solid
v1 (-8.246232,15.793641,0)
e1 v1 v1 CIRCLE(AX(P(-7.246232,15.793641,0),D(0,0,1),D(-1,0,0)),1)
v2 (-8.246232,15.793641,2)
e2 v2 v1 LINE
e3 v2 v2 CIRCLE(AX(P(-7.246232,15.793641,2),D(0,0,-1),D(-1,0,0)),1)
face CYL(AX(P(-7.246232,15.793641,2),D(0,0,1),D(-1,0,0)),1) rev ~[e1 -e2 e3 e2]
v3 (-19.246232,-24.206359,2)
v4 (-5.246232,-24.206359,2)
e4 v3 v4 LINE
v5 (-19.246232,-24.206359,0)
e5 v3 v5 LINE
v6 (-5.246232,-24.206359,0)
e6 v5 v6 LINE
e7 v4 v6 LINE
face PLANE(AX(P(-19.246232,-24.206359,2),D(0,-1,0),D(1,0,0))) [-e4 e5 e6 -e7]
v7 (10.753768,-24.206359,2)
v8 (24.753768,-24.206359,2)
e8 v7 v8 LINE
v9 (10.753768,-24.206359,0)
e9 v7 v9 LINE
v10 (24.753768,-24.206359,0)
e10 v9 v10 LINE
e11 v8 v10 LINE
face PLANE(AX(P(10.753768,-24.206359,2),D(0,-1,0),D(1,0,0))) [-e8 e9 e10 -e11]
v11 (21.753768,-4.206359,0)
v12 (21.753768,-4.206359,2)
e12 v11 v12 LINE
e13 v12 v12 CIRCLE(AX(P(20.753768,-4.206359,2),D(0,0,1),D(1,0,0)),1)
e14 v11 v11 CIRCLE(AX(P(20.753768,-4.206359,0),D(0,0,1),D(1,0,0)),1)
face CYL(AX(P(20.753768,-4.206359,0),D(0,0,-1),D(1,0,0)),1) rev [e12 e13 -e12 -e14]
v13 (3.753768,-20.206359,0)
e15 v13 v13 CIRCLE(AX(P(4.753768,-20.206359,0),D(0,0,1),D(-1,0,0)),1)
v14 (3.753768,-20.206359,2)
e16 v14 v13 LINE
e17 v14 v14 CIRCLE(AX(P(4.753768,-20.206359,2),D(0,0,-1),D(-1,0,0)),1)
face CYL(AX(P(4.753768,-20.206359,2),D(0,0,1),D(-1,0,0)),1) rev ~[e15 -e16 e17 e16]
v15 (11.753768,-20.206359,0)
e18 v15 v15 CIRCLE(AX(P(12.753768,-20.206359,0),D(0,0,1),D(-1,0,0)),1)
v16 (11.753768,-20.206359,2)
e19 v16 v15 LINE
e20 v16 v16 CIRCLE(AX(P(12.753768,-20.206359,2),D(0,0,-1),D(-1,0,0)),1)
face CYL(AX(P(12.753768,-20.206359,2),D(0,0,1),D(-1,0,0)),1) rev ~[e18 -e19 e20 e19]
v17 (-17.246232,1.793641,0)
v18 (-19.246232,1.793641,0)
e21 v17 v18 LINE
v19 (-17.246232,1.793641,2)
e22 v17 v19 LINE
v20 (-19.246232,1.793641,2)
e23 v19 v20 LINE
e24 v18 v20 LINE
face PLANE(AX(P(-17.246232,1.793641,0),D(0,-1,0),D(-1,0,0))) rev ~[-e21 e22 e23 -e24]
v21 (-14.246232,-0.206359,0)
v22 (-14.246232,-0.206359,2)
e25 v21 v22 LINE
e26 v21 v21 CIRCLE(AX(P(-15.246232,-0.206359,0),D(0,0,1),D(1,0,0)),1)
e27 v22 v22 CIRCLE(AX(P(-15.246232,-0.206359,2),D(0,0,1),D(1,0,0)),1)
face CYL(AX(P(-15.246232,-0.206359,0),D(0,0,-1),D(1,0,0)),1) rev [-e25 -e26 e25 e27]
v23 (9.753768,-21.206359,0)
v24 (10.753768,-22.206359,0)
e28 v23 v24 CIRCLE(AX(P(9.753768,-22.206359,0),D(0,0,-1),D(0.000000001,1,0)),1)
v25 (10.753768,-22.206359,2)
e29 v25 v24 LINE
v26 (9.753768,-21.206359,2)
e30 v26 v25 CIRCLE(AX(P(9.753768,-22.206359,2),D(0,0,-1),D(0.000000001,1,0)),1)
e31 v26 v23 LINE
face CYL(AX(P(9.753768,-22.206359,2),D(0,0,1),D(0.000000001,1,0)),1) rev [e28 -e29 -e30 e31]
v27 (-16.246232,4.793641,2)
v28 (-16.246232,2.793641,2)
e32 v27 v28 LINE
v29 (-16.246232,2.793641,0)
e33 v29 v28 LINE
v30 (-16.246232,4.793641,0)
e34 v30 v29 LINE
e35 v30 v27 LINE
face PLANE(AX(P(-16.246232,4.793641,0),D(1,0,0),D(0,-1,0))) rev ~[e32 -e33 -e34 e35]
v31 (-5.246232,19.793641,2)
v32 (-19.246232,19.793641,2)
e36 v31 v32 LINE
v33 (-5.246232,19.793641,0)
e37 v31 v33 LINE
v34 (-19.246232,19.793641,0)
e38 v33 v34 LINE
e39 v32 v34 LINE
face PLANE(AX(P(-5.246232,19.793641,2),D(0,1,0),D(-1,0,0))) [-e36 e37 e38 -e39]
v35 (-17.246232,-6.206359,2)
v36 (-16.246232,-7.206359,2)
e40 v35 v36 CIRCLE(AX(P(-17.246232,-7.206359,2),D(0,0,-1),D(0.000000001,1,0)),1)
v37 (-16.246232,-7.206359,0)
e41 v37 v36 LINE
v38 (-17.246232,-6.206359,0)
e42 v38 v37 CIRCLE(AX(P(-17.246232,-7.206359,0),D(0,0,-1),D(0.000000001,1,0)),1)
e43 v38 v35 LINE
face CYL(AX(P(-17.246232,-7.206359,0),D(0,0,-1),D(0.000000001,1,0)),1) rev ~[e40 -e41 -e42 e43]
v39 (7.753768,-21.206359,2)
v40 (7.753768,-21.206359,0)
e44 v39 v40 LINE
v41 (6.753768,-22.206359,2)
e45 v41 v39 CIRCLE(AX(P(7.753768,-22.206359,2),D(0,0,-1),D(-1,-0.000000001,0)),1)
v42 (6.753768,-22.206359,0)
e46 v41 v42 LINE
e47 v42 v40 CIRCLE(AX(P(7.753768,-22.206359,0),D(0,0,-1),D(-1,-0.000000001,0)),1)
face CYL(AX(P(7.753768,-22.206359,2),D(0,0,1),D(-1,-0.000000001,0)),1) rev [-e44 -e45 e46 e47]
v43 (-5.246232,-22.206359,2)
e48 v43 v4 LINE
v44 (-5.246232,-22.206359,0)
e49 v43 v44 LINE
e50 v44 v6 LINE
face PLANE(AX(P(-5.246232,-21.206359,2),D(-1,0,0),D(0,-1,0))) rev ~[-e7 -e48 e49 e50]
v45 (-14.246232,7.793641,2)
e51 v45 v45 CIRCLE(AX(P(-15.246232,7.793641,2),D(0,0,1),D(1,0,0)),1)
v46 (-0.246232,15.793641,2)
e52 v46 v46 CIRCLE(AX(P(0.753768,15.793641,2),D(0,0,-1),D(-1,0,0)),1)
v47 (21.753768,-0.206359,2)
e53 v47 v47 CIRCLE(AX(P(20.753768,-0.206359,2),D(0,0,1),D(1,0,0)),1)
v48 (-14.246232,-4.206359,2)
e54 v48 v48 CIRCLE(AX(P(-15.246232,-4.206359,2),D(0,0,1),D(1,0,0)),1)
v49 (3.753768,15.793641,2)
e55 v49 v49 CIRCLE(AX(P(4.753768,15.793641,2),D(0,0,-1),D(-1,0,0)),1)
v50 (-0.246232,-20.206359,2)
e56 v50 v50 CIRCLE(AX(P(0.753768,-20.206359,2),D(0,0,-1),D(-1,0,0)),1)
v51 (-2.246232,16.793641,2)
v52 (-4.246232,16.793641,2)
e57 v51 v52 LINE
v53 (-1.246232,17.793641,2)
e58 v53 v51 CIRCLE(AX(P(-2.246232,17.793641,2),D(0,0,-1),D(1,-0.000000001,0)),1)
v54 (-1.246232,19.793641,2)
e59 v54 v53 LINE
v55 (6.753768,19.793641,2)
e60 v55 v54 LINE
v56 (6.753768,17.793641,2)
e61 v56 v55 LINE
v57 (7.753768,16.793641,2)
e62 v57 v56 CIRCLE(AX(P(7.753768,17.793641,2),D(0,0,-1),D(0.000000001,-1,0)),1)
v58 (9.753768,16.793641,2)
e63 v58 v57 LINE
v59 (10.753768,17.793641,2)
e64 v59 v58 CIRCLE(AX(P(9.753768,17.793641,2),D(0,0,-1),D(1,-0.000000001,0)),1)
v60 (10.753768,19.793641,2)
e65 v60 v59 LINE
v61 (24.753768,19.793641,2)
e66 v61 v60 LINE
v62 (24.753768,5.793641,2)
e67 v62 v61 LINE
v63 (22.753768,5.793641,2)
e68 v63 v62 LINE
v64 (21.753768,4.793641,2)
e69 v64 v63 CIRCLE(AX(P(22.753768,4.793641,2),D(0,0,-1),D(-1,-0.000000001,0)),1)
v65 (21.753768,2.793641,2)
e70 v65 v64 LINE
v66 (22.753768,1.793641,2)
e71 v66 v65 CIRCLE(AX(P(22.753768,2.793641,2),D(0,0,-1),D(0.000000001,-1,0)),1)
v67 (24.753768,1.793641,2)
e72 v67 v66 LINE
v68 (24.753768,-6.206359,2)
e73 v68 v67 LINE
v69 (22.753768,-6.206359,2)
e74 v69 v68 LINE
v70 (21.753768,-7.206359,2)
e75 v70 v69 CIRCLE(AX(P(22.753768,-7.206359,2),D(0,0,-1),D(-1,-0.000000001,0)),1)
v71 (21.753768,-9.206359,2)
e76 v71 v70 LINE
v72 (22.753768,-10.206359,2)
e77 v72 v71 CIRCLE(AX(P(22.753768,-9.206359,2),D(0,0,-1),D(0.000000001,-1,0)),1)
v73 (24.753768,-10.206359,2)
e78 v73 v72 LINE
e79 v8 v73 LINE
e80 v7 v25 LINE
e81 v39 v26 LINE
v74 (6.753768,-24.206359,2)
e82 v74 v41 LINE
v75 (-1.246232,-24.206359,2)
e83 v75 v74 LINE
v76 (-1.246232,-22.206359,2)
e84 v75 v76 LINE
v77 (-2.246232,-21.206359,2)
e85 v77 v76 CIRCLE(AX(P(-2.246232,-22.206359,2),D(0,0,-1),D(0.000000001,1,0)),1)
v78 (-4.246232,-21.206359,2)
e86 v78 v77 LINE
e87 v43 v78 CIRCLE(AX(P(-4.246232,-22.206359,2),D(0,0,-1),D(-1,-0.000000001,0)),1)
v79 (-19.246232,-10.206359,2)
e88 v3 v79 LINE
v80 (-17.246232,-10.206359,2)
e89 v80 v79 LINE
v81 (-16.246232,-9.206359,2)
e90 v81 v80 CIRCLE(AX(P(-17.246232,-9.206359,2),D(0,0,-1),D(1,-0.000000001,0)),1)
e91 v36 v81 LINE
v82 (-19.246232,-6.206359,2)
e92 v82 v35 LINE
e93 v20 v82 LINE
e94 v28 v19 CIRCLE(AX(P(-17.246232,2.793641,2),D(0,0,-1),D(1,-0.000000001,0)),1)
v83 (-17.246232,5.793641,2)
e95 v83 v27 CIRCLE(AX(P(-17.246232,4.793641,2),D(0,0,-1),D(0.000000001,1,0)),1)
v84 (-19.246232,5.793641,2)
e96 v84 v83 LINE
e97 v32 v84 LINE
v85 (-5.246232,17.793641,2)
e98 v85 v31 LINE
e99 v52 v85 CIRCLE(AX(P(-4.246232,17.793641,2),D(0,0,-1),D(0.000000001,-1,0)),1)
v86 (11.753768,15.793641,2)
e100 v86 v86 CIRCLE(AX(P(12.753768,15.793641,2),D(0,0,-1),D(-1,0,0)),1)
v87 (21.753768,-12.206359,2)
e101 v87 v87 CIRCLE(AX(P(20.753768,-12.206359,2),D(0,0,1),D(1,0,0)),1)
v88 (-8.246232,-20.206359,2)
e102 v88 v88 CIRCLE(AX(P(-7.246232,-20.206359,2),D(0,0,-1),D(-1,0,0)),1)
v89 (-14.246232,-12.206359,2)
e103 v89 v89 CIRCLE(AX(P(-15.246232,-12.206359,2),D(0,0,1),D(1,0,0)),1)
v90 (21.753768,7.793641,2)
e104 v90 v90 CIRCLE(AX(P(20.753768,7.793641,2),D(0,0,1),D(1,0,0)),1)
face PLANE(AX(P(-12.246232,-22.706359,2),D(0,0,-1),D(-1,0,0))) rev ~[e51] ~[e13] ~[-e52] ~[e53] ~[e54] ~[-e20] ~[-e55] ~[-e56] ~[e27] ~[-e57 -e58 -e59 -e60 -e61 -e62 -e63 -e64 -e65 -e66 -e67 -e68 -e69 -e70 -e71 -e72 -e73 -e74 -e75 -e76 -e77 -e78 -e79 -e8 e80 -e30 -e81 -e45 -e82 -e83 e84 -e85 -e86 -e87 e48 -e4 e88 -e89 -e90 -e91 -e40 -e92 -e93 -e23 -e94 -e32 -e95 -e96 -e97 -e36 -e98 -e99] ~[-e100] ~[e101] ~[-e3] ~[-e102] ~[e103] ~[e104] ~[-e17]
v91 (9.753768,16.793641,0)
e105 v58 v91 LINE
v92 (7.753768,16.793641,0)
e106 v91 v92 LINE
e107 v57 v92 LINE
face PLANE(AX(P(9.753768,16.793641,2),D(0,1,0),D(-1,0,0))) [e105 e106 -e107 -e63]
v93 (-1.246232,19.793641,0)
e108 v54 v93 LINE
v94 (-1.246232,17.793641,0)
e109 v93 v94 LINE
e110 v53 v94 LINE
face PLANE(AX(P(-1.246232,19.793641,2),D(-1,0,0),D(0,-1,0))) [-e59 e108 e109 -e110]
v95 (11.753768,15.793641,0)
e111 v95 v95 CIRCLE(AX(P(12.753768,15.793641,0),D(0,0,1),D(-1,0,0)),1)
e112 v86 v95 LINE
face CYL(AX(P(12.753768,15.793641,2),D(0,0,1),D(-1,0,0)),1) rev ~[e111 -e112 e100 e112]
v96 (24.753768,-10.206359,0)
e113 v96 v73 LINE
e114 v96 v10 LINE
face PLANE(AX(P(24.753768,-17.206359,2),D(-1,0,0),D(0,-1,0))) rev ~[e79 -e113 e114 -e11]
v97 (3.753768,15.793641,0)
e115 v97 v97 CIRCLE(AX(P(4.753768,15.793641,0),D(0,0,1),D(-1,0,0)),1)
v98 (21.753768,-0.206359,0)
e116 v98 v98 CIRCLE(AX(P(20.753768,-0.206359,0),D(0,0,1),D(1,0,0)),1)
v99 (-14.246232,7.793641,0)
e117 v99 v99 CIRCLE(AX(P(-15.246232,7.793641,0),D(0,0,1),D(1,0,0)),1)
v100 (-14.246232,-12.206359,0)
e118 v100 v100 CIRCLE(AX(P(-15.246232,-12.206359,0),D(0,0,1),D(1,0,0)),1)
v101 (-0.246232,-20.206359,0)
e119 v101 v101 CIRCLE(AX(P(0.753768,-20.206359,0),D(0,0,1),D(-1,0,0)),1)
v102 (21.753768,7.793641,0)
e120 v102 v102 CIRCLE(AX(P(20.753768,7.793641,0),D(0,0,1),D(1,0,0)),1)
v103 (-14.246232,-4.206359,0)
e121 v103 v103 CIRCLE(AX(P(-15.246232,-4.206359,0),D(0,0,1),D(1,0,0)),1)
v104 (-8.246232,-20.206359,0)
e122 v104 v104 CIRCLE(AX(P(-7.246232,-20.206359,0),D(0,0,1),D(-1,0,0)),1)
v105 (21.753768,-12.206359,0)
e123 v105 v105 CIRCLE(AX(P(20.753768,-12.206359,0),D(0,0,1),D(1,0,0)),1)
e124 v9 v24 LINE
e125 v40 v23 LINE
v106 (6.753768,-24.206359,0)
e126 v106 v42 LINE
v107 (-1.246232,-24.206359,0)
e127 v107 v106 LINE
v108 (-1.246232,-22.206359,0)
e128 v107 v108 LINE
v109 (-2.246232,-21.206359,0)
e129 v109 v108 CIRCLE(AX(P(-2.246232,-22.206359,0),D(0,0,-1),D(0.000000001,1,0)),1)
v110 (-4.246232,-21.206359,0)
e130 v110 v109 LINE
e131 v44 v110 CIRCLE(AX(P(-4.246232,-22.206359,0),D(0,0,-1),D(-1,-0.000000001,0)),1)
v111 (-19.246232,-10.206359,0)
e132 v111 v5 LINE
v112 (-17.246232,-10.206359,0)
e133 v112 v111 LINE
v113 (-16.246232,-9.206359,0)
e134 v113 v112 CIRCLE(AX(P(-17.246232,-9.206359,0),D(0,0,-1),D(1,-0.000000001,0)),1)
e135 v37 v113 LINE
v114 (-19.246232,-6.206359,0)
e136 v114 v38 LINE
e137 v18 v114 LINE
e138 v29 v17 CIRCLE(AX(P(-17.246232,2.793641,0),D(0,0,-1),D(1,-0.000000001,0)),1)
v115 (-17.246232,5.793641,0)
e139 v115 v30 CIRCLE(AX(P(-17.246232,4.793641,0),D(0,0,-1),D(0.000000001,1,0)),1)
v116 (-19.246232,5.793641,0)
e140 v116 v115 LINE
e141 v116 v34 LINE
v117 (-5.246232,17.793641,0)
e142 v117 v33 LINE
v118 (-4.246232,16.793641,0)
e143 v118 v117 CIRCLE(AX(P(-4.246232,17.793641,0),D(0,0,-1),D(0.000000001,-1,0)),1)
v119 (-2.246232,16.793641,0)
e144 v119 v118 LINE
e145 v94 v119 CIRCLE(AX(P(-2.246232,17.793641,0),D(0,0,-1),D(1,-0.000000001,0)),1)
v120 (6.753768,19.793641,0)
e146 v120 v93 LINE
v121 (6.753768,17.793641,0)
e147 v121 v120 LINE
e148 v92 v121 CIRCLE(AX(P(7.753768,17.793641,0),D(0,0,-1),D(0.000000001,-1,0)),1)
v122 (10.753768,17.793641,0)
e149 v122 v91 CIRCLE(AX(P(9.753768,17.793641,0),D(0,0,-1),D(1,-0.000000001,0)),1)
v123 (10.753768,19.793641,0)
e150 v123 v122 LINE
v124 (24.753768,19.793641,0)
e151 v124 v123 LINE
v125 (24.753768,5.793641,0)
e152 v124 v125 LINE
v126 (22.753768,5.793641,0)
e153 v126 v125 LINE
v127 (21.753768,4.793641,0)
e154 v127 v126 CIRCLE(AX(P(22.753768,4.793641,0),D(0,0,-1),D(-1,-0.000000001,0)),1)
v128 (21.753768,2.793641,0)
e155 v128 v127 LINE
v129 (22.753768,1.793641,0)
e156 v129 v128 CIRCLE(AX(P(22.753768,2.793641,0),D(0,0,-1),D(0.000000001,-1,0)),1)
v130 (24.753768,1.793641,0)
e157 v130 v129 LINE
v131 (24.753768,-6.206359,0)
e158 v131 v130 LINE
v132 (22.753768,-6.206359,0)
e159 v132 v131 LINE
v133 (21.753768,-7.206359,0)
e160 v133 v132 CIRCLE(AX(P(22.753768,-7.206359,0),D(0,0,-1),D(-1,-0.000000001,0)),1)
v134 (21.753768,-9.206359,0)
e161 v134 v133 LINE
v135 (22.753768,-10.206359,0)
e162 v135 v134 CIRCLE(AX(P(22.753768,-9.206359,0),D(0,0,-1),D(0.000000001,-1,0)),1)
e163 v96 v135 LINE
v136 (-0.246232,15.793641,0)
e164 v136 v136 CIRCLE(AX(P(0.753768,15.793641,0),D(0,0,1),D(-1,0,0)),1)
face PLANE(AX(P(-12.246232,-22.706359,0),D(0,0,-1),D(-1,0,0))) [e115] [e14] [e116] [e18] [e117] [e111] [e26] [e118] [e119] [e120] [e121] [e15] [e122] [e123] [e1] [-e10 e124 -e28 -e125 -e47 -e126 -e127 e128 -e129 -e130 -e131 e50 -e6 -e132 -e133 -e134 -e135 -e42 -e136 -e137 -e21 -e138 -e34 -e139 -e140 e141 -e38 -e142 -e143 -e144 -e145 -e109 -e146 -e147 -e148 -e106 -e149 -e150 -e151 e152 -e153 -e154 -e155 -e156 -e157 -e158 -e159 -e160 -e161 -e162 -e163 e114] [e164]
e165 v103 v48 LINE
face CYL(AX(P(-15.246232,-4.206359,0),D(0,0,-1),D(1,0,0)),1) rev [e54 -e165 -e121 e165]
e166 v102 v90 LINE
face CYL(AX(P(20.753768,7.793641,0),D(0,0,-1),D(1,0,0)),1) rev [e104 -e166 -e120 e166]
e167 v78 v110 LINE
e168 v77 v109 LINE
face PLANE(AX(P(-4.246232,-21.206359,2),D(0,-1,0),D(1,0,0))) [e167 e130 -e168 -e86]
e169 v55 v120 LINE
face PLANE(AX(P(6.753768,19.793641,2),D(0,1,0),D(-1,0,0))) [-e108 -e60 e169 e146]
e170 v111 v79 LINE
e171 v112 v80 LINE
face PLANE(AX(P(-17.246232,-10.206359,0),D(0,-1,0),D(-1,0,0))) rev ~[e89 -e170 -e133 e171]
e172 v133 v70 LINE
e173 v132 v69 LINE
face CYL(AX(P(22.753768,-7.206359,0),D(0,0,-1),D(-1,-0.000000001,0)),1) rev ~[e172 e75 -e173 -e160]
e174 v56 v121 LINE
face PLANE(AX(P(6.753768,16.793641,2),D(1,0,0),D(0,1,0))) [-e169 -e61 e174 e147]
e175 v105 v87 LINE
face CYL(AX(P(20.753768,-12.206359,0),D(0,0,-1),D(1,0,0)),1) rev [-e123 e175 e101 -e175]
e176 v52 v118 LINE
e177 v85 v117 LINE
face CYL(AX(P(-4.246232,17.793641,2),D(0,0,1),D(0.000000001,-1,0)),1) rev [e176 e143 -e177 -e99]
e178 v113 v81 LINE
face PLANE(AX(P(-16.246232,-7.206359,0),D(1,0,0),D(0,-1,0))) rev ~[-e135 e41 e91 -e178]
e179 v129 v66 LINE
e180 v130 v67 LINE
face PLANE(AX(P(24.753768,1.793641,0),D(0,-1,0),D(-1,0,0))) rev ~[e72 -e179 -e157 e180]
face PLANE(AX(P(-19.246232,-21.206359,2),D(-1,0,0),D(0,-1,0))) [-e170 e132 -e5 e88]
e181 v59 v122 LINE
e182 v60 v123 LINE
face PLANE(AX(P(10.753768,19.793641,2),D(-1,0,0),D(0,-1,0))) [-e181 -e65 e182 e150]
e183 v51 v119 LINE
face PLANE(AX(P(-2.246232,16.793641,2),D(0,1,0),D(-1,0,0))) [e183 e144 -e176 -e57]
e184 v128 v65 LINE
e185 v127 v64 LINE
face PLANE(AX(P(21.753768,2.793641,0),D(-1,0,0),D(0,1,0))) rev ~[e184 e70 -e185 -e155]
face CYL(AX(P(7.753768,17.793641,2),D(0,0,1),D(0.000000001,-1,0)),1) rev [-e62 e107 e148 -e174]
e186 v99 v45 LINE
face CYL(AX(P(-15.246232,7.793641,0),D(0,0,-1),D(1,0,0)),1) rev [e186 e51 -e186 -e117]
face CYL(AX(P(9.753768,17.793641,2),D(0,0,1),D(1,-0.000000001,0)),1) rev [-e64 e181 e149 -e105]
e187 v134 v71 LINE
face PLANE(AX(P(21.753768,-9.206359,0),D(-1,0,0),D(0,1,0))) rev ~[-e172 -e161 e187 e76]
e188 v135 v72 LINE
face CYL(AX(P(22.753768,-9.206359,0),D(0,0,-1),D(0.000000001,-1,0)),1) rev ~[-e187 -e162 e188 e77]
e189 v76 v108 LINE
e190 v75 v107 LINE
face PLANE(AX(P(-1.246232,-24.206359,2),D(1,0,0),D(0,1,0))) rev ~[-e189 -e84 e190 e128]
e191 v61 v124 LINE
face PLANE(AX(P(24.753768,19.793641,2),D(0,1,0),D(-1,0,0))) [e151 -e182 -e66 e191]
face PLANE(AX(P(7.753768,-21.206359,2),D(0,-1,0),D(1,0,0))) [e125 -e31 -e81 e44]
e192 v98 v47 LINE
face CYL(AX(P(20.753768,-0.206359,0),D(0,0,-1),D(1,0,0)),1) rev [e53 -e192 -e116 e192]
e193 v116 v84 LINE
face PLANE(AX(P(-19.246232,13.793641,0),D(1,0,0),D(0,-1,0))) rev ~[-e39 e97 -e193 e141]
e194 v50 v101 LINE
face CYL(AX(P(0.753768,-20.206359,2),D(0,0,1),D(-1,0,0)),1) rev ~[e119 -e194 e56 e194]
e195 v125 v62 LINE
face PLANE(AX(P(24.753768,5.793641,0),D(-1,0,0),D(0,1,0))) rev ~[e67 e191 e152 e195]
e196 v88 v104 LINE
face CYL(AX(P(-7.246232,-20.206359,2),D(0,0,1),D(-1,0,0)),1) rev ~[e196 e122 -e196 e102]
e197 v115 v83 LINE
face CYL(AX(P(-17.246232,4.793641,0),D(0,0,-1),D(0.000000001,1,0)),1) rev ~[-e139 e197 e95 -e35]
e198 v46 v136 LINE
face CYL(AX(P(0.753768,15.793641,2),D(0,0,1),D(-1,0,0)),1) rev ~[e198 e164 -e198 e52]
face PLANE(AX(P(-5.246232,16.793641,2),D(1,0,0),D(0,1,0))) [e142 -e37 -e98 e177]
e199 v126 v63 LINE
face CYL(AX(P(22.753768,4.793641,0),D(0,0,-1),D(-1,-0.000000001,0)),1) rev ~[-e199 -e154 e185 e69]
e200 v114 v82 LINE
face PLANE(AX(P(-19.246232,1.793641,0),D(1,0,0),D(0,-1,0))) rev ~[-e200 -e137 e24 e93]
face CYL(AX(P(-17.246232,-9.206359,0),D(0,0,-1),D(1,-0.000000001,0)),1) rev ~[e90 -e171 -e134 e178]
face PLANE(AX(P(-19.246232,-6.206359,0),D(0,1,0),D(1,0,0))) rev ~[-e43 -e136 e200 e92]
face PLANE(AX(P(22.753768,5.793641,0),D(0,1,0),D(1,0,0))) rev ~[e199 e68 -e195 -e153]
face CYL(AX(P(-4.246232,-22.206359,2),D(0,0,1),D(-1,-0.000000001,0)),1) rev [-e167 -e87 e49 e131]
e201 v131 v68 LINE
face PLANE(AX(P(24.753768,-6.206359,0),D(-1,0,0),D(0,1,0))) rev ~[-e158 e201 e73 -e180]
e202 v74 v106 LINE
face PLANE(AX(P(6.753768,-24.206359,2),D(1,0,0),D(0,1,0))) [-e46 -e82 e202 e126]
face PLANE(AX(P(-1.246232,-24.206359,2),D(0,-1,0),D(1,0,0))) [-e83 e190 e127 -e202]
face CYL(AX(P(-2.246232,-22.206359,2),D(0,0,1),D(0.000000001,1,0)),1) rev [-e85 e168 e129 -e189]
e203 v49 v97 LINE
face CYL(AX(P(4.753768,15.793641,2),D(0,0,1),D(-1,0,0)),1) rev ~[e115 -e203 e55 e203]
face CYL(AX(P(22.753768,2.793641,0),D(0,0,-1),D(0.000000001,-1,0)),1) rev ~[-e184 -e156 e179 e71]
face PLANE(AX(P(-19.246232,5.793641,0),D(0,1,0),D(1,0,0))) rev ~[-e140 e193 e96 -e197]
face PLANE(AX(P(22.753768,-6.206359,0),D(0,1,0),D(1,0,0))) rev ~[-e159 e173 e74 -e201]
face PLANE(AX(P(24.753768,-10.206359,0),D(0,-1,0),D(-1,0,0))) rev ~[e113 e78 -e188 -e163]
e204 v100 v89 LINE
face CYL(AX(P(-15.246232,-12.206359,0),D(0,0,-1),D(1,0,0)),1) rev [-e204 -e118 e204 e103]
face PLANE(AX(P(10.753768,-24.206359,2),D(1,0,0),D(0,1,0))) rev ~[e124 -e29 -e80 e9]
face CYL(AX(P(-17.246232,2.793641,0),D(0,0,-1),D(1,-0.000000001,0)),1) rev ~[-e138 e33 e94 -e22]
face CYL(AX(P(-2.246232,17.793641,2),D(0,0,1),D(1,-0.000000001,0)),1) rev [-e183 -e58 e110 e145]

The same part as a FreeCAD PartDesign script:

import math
import FreeCAD as App
import Part
import Sketcher

V = App.Vector


def edges_at(feature, points):
    """Names of the edges that pass closest to the given points."""
    edges = feature.Shape.Edges
    near = lambda p: min(range(len(edges)), key=lambda i: edges[i].distToShape(Part.Vertex(*p))[0])
    return sorted({f"Edge{near(p) + 1}" for p in points})


def add_polygon(sketch, points):
    """Adds a closed chain of lines whose ends are joined by coincident constraints."""
    first, n = sketch.GeometryCount, len(points)
    for a, b in zip(points, points[1:] + points[:1]):
        sketch.addGeometry(Part.LineSegment(App.Vector(*a, 0), App.Vector(*b, 0)), False)
    for i in range(n):
        sketch.addConstraint(Sketcher.Constraint("Coincident", first + i, 2, first + (i + 1) % n, 1))

doc = App.newDocument("Part")
body = doc.addObject("PartDesign::Body", "Body")

# Sketch on XY plane
sketch1 = body.newObject("Sketcher::SketchObject", "Sketch")
sketch1.AttachmentSupport = (doc.getObject("XY_Plane"), [""])
sketch1.MapMode = "FlatFace"
sketch1.addGeometry([
    Part.LineSegment(V(-19.2, 5.8, 0), V(-17.2, 5.8, 0)),  # 0
    Part.ArcOfCircle(Part.Circle(V(-17.2, 4.8, 0), V(0, 0, 1), 1), math.radians(0), math.radians(90)),  # 1
    Part.LineSegment(V(-16.2, 4.8, 0), V(-16.2, 2.8, 0)),  # 2
    Part.ArcOfCircle(Part.Circle(V(-17.2, 2.8, 0), V(0, 0, 1), 1), math.radians(-90), math.radians(0)),  # 3
    Part.LineSegment(V(-17.2, 1.8, 0), V(-19.2, 1.8, 0)),  # 4
    Part.LineSegment(V(-19.2, 1.8, 0), V(-19.2, -6.2, 0)),  # 5
    Part.LineSegment(V(-19.2, -6.2, 0), V(-17.2, -6.2, 0)),  # 6
    Part.ArcOfCircle(Part.Circle(V(-17.2, -7.2, 0), V(0, 0, 1), 1), math.radians(0), math.radians(90)),  # 7
    Part.LineSegment(V(-16.2, -7.2, 0), V(-16.2, -9.2, 0)),  # 8
    Part.ArcOfCircle(Part.Circle(V(-17.2, -9.2, 0), V(0, 0, 1), 1), math.radians(-90), math.radians(0)),  # 9
    Part.LineSegment(V(-17.2, -10.2, 0), V(-19.2, -10.2, 0)),  # 10
    Part.LineSegment(V(-19.2, -10.2, 0), V(-19.2, -18.2, 0)),  # 11
    Part.LineSegment(V(-19.2, -18.2, 0), V(24.8, -18.2, 0)),  # 12
    Part.LineSegment(V(24.8, -18.2, 0), V(24.8, -10.2, 0)),  # 13
    Part.LineSegment(V(24.8, -10.2, 0), V(22.8, -10.2, 0)),  # 14
    Part.ArcOfCircle(Part.Circle(V(22.8, -9.2, 0), V(0, 0, 1), 1), math.radians(180), math.radians(270)),  # 15
    Part.LineSegment(V(21.8, -9.2, 0), V(21.8, -7.2, 0)),  # 16
    Part.ArcOfCircle(Part.Circle(V(22.8, -7.2, 0), V(0, 0, 1), 1), math.radians(90), math.radians(180)),  # 17
    Part.LineSegment(V(22.8, -6.2, 0), V(24.8, -6.2, 0)),  # 18
    Part.LineSegment(V(24.8, -6.2, 0), V(24.8, 1.8, 0)),  # 19
    Part.LineSegment(V(24.8, 1.8, 0), V(22.8, 1.8, 0)),  # 20
    Part.ArcOfCircle(Part.Circle(V(22.8, 2.8, 0), V(0, 0, 1), 1), math.radians(180), math.radians(270)),  # 21
    Part.LineSegment(V(21.8, 2.8, 0), V(21.8, 4.8, 0)),  # 22
    Part.ArcOfCircle(Part.Circle(V(22.8, 4.8, 0), V(0, 0, 1), 1), math.radians(90), math.radians(180)),  # 23
    Part.LineSegment(V(22.8, 5.8, 0), V(24.8, 5.8, 0)),  # 24
    Part.LineSegment(V(24.8, 5.8, 0), V(24.8, 13.8, 0)),  # 25
    Part.LineSegment(V(24.8, 13.8, 0), V(-19.2, 13.8, 0)),  # 26
    Part.LineSegment(V(-19.2, 13.8, 0), V(-19.2, 5.8, 0)),  # 27
    Part.Circle(V(-15.2, -12.2, 0), V(0, 0, 1), 1),  # 28
    Part.Circle(V(-15.2, -4.2, 0), V(0, 0, 1), 1),  # 29
    Part.Circle(V(20.8, -12.2, 0), V(0, 0, 1), 1),  # 30
    Part.Circle(V(20.8, -4.2, 0), V(0, 0, 1), 1),  # 31
    Part.Circle(V(-15.2, -0.2, 0), V(0, 0, 1), 1),  # 32
    Part.Circle(V(-15.2, 7.8, 0), V(0, 0, 1), 1),  # 33
    Part.Circle(V(20.8, -0.2, 0), V(0, 0, 1), 1),  # 34
    Part.Circle(V(20.8, 7.8, 0), V(0, 0, 1), 1),  # 35
], False)
sketch1.addConstraint([
    Sketcher.Constraint("Tangent", 0, 2, 1, 2),
    Sketcher.Constraint("Tangent", 1, 1, 2, 1),
    Sketcher.Constraint("Tangent", 2, 2, 3, 2),
    Sketcher.Constraint("Tangent", 3, 1, 4, 1),
    Sketcher.Constraint("Coincident", 4, 2, 5, 1),
    Sketcher.Constraint("Coincident", 5, 2, 6, 1),
    Sketcher.Constraint("Tangent", 6, 2, 7, 2),
    Sketcher.Constraint("Tangent", 7, 1, 8, 1),
    Sketcher.Constraint("Tangent", 8, 2, 9, 2),
    Sketcher.Constraint("Tangent", 9, 1, 10, 1),
    Sketcher.Constraint("Coincident", 10, 2, 11, 1),
    Sketcher.Constraint("Coincident", 11, 2, 12, 1),
    Sketcher.Constraint("Coincident", 12, 2, 13, 1),
    Sketcher.Constraint("Coincident", 13, 2, 14, 1),
    Sketcher.Constraint("Tangent", 14, 2, 15, 2),
    Sketcher.Constraint("Tangent", 15, 1, 16, 1),
    Sketcher.Constraint("Tangent", 16, 2, 17, 2),
    Sketcher.Constraint("Tangent", 17, 1, 18, 1),
    Sketcher.Constraint("Coincident", 18, 2, 19, 1),
    Sketcher.Constraint("Coincident", 19, 2, 20, 1),
    Sketcher.Constraint("Tangent", 20, 2, 21, 2),
    Sketcher.Constraint("Tangent", 21, 1, 22, 1),
    Sketcher.Constraint("Tangent", 22, 2, 23, 2),
    Sketcher.Constraint("Tangent", 23, 1, 24, 1),
    Sketcher.Constraint("Coincident", 24, 2, 25, 1),
    Sketcher.Constraint("Coincident", 25, 2, 26, 1),
    Sketcher.Constraint("Coincident", 26, 2, 27, 1),
    Sketcher.Constraint("Coincident", 27, 2, 0, 1),
    Sketcher.Constraint("Horizontal", 0),
    Sketcher.Constraint("Vertical", 2),
    Sketcher.Constraint("Horizontal", 4),
    Sketcher.Constraint("Vertical", 5),
    Sketcher.Constraint("Horizontal", 6),
    Sketcher.Constraint("Vertical", 8),
    Sketcher.Constraint("Horizontal", 10),
    Sketcher.Constraint("Vertical", 11),
    Sketcher.Constraint("Horizontal", 12),
    Sketcher.Constraint("Vertical", 13),
    Sketcher.Constraint("Horizontal", 14),
    Sketcher.Constraint("Vertical", 16),
    Sketcher.Constraint("Horizontal", 18),
    Sketcher.Constraint("Vertical", 19),
    Sketcher.Constraint("Horizontal", 20),
    Sketcher.Constraint("Vertical", 22),
    Sketcher.Constraint("Horizontal", 24),
    Sketcher.Constraint("Vertical", 25),
    Sketcher.Constraint("Horizontal", 26),
    Sketcher.Constraint("Vertical", 27),
    Sketcher.Constraint("Equal", 1, 3),
    Sketcher.Constraint("Equal", 3, 7),
    Sketcher.Constraint("Equal", 7, 9),
    Sketcher.Constraint("Equal", 9, 15),
    Sketcher.Constraint("Equal", 15, 17),
    Sketcher.Constraint("Equal", 17, 21),
    Sketcher.Constraint("Equal", 21, 23),
    Sketcher.Constraint("Equal", 23, 28),
    Sketcher.Constraint("Equal", 28, 29),
    Sketcher.Constraint("Equal", 29, 30),
    Sketcher.Constraint("Equal", 30, 31),
    Sketcher.Constraint("Equal", 31, 32),
    Sketcher.Constraint("Equal", 32, 33),
    Sketcher.Constraint("Equal", 33, 34),
    Sketcher.Constraint("Equal", 34, 35),
    Sketcher.Constraint("Horizontal", 9, 3, 15, 3),
    Sketcher.Constraint("Horizontal", 7, 3, 17, 3),
    Sketcher.Constraint("Horizontal", 3, 3, 21, 3),
    Sketcher.Constraint("Horizontal", 1, 3, 23, 3),
    Sketcher.Constraint("Horizontal", 28, 3, 30, 3),
    Sketcher.Constraint("Horizontal", 29, 3, 31, 3),
    Sketcher.Constraint("Horizontal", 32, 3, 34, 3),
    Sketcher.Constraint("Horizontal", 33, 3, 35, 3),
    Sketcher.Constraint("Vertical", 3, 3, 7, 3),
    Sketcher.Constraint("Vertical", 17, 3, 21, 3),
    Sketcher.Constraint("Vertical", 28, 3, 29, 3),
    Sketcher.Constraint("Vertical", 30, 3, 31, 3),
    Sketcher.Constraint("Vertical", 29, 3, 32, 3),
    Sketcher.Constraint("Vertical", 32, 3, 33, 3),
    Sketcher.Constraint("Vertical", 31, 3, 34, 3),
    Sketcher.Constraint("Vertical", 34, 3, 35, 3),
    Sketcher.Constraint("Vertical", 5, 2, 10, 2),
    Sketcher.Constraint("Vertical", 13, 2, 18, 2),
    Sketcher.Constraint("Vertical", 19, 2, 24, 2),
    Sketcher.Constraint("Vertical", 11, 2, 26, 2),
    Sketcher.Constraint("Equal", 10, 14),
    Sketcher.Constraint("Equal", 24, 2),
    Sketcher.Constraint("Equal", 2, 8),
    Sketcher.Constraint("Equal", 5, 11),
    Sketcher.Constraint("Equal", 19, 25),
    Sketcher.Constraint("Diameter", 28, 2.0),
    Sketcher.Constraint("DistanceX", 0, 1, 0, 2, 2.0),
    Sketcher.Constraint("DistanceX", 12, 1, 12, 2, 44.0),
    Sketcher.Constraint("DistanceY", 5, 2, 5, 1, 8.0),
    Sketcher.Constraint("DistanceX", 9, 3, 28, 3, 2.0),
    Sketcher.Constraint("DistanceY", 28, 3, 9, 3, 3.0),
    Sketcher.Constraint("DistanceY", 7, 3, 29, 3, 3.0),
    Sketcher.Constraint("DistanceX", 30, 3, 15, 3, 2.0),
    Sketcher.Constraint("DistanceY", 32, 3, 3, 3, 3.0),
    Sketcher.Constraint("DistanceY", 1, 3, 33, 3, 3.0),
    Sketcher.Constraint("DistanceY", -1, 1, 1, 3, 4.793641),
    Sketcher.Constraint("DistanceX", 1, 3, -1, 1, 17.246232),
])
pad1 = body.newObject("PartDesign::Pad", "Pad")
pad1.Profile = sketch1
pad1.Length = 2
doc.recompute()

fillet = body.newObject("PartDesign::Fillet", "Fillet")
fillet.Base = (pad1, edges_at(pad1, [
    (-19.246, 13.794, 1),
    (24.754, 13.794, 1),
    (24.754, -18.206, 1),
    (-19.246, -18.206, 1),
]))
fillet.Radius = 1

# Sketch on XY plane
sketch2 = body.newObject("Sketcher::SketchObject", "Sketch001")
sketch2.AttachmentSupport = (doc.getObject("XY_Plane"), [""])
sketch2.MapMode = "FlatFace"
sketch2.AttachmentOffset = App.Placement(V(0, 0, 2), App.Rotation())
sketch2.addGeometry([
    Part.LineSegment(V(-19.2, -17.2, 0), V(-19.2, -21.2, 0)),  # 0
    Part.ArcOfCircle(Part.Circle(V(-18.2, -21.2, 0), V(0, 0, 1), 1), math.radians(180), math.radians(270)),  # 1
    Part.LineSegment(V(-18.2, -22.2, 0), V(23.8, -22.2, 0)),  # 2
    Part.ArcOfCircle(Part.Circle(V(23.8, -21.2, 0), V(0, 0, 1), 1), math.radians(-90), math.radians(0)),  # 3
    Part.LineSegment(V(24.8, -21.2, 0), V(24.8, -17.2, 0)),  # 4
    Part.LineSegment(V(24.8, -17.2, 0), V(-19.2, -17.2, 0)),  # 5
    Part.LineSegment(V(-19.2, 12.8, 0), V(24.8, 12.8, 0)),  # 6
    Part.LineSegment(V(24.8, 12.8, 0), V(24.8, 16.8, 0)),  # 7
    Part.ArcOfCircle(Part.Circle(V(23.8, 16.8, 0), V(0, 0, 1), 1), math.radians(0), math.radians(90)),  # 8
    Part.LineSegment(V(23.8, 17.8, 0), V(-18.2, 17.8, 0)),  # 9
    Part.ArcOfCircle(Part.Circle(V(-18.2, 16.8, 0), V(0, 0, 1), 1), math.radians(90), math.radians(180)),  # 10
    Part.LineSegment(V(-19.2, 16.8, 0), V(-19.2, 12.8, 0)),  # 11
], False)
sketch2.addConstraint([
    Sketcher.Constraint("Tangent", 0, 2, 1, 1),
    Sketcher.Constraint("Tangent", 1, 2, 2, 1),
    Sketcher.Constraint("Tangent", 2, 2, 3, 1),
    Sketcher.Constraint("Tangent", 3, 2, 4, 1),
    Sketcher.Constraint("Coincident", 4, 2, 5, 1),
    Sketcher.Constraint("Coincident", 5, 2, 0, 1),
    Sketcher.Constraint("Coincident", 6, 2, 7, 1),
    Sketcher.Constraint("Tangent", 7, 2, 8, 1),
    Sketcher.Constraint("Tangent", 8, 2, 9, 1),
    Sketcher.Constraint("Tangent", 9, 2, 10, 1),
    Sketcher.Constraint("Tangent", 10, 2, 11, 1),
    Sketcher.Constraint("Coincident", 11, 2, 6, 1),
    Sketcher.Constraint("Vertical", 0),
    Sketcher.Constraint("Horizontal", 2),
    Sketcher.Constraint("Vertical", 4),
    Sketcher.Constraint("Horizontal", 5),
    Sketcher.Constraint("Horizontal", 6),
    Sketcher.Constraint("Vertical", 7),
    Sketcher.Constraint("Horizontal", 9),
    Sketcher.Constraint("Vertical", 11),
    Sketcher.Constraint("Equal", 1, 3),
    Sketcher.Constraint("Equal", 3, 8),
    Sketcher.Constraint("Equal", 8, 10),
    Sketcher.Constraint("Vertical", 3, 3, 8, 3),
    Sketcher.Constraint("Vertical", 1, 3, 10, 3),
    Sketcher.Constraint("Equal", 4, 7),
    Sketcher.Constraint("Radius", 1, 1.0),
    Sketcher.Constraint("DistanceX", 2, 1, 2, 2, 42.0),
    Sketcher.Constraint("DistanceY", 0, 2, 0, 1, 4.0),
    Sketcher.Constraint("DistanceY", 3, 3, 8, 3, 38.0),
    Sketcher.Constraint("DistanceY", 1, 3, -1, 1, 21.206359),
    Sketcher.Constraint("DistanceX", 1, 3, -1, 1, 18.246232),
])
pad2 = body.newObject("PartDesign::Pad", "Pad001")
pad2.Profile = sketch2
pad2.Length = 2
pad2.Reversed = True

# Sketch on XY plane
sketch3 = body.newObject("Sketcher::SketchObject", "Sketch002")
sketch3.AttachmentSupport = (doc.getObject("XY_Plane"), [""])
sketch3.MapMode = "FlatFace"
sketch3.AttachmentOffset = App.Placement(V(0, 0, 2), App.Rotation())
sketch3.addGeometry([
    Part.Circle(V(12.8, 15.8, 0), V(0, 0, 1), 1),  # 0
    Part.Circle(V(0.8, 15.8, 0), V(0, 0, 1), 1),  # 1
    Part.Circle(V(0.8, -20.2, 0), V(0, 0, 1), 1),  # 2
    Part.Circle(V(-7.2, -20.2, 0), V(0, 0, 1), 1),  # 3
    Part.Circle(V(4.8, -20.2, 0), V(0, 0, 1), 1),  # 4
    Part.Circle(V(12.8, -20.2, 0), V(0, 0, 1), 1),  # 5
    Part.Circle(V(-7.2, 15.8, 0), V(0, 0, 1), 1),  # 6
    Part.Circle(V(4.8, 15.8, 0), V(0, 0, 1), 1),  # 7
    Part.LineSegment(V(-1.2, 19.8, 0), V(-5.2, 19.8, 0)),  # 8
    Part.LineSegment(V(-5.2, 19.8, 0), V(-5.2, 17.8, 0)),  # 9
    Part.ArcOfCircle(Part.Circle(V(-4.2, 17.8, 0), V(0, 0, 1), 1), math.radians(180), math.radians(270)),  # 10
    Part.LineSegment(V(-4.2, 16.8, 0), V(-2.2, 16.8, 0)),  # 11
    Part.ArcOfCircle(Part.Circle(V(-2.2, 17.8, 0), V(0, 0, 1), 1), math.radians(-90), math.radians(0)),  # 12
    Part.LineSegment(V(-1.2, 17.8, 0), V(-1.2, 19.8, 0)),  # 13
    Part.LineSegment(V(7.8, 16.8, 0), V(9.8, 16.8, 0)),  # 14
    Part.ArcOfCircle(Part.Circle(V(9.8, 17.8, 0), V(0, 0, 1), 1), math.radians(-90), math.radians(0)),  # 15
    Part.LineSegment(V(10.8, 17.8, 0), V(10.8, 19.8, 0)),  # 16
    Part.LineSegment(V(10.8, 19.8, 0), V(6.8, 19.8, 0)),  # 17
    Part.LineSegment(V(6.8, 19.8, 0), V(6.8, 17.8, 0)),  # 18
    Part.ArcOfCircle(Part.Circle(V(7.8, 17.8, 0), V(0, 0, 1), 1), math.radians(180), math.radians(270)),  # 19
    Part.LineSegment(V(6.8, -24.2, 0), V(10.8, -24.2, 0)),  # 20
    Part.LineSegment(V(10.8, -24.2, 0), V(10.8, -22.2, 0)),  # 21
    Part.ArcOfCircle(Part.Circle(V(9.8, -22.2, 0), V(0, 0, 1), 1), math.radians(0), math.radians(90)),  # 22
    Part.LineSegment(V(9.8, -21.2, 0), V(7.8, -21.2, 0)),  # 23
    Part.ArcOfCircle(Part.Circle(V(7.8, -22.2, 0), V(0, 0, 1), 1), math.radians(90), math.radians(180)),  # 24
    Part.LineSegment(V(6.8, -22.2, 0), V(6.8, -24.2, 0)),  # 25
    Part.LineSegment(V(-2.2, -21.2, 0), V(-4.2, -21.2, 0)),  # 26
    Part.ArcOfCircle(Part.Circle(V(-4.2, -22.2, 0), V(0, 0, 1), 1), math.radians(90), math.radians(180)),  # 27
    Part.LineSegment(V(-5.2, -22.2, 0), V(-5.2, -24.2, 0)),  # 28
    Part.LineSegment(V(-5.2, -24.2, 0), V(-1.2, -24.2, 0)),  # 29
    Part.LineSegment(V(-1.2, -24.2, 0), V(-1.2, -22.2, 0)),  # 30
    Part.ArcOfCircle(Part.Circle(V(-2.2, -22.2, 0), V(0, 0, 1), 1), math.radians(0), math.radians(90)),  # 31
], False)
sketch3.addConstraint([
    Sketcher.Constraint("Coincident", 8, 2, 9, 1),
    Sketcher.Constraint("Tangent", 9, 2, 10, 1),
    Sketcher.Constraint("Tangent", 10, 2, 11, 1),
    Sketcher.Constraint("Tangent", 11, 2, 12, 1),
    Sketcher.Constraint("Tangent", 12, 2, 13, 1),
    Sketcher.Constraint("Coincident", 13, 2, 8, 1),
    Sketcher.Constraint("Tangent", 14, 2, 15, 1),
    Sketcher.Constraint("Tangent", 15, 2, 16, 1),
    Sketcher.Constraint("Coincident", 16, 2, 17, 1),
    Sketcher.Constraint("Coincident", 17, 2, 18, 1),
    Sketcher.Constraint("Tangent", 18, 2, 19, 1),
    Sketcher.Constraint("Tangent", 19, 2, 14, 1),
    Sketcher.Constraint("Coincident", 20, 2, 21, 1),
    Sketcher.Constraint("Tangent", 21, 2, 22, 1),
    Sketcher.Constraint("Tangent", 22, 2, 23, 1),
    Sketcher.Constraint("Tangent", 23, 2, 24, 1),
    Sketcher.Constraint("Tangent", 24, 2, 25, 1),
    Sketcher.Constraint("Coincident", 25, 2, 20, 1),
    Sketcher.Constraint("Tangent", 26, 2, 27, 1),
    Sketcher.Constraint("Tangent", 27, 2, 28, 1),
    Sketcher.Constraint("Coincident", 28, 2, 29, 1),
    Sketcher.Constraint("Coincident", 29, 2, 30, 1),
    Sketcher.Constraint("Tangent", 30, 2, 31, 1),
    Sketcher.Constraint("Tangent", 31, 2, 26, 1),
    Sketcher.Constraint("Horizontal", 8),
    Sketcher.Constraint("Vertical", 9),
    Sketcher.Constraint("Horizontal", 11),
    Sketcher.Constraint("Vertical", 13),
    Sketcher.Constraint("Horizontal", 14),
    Sketcher.Constraint("Vertical", 16),
    Sketcher.Constraint("Horizontal", 17),
    Sketcher.Constraint("Vertical", 18),
    Sketcher.Constraint("Horizontal", 20),
    Sketcher.Constraint("Vertical", 21),
    Sketcher.Constraint("Horizontal", 23),
    Sketcher.Constraint("Vertical", 25),
    Sketcher.Constraint("Horizontal", 26),
    Sketcher.Constraint("Vertical", 28),
    Sketcher.Constraint("Horizontal", 29),
    Sketcher.Constraint("Vertical", 30),
    Sketcher.Constraint("Equal", 0, 1),
    Sketcher.Constraint("Equal", 1, 2),
    Sketcher.Constraint("Equal", 2, 3),
    Sketcher.Constraint("Equal", 3, 4),
    Sketcher.Constraint("Equal", 4, 5),
    Sketcher.Constraint("Equal", 5, 6),
    Sketcher.Constraint("Equal", 6, 7),
    Sketcher.Constraint("Equal", 7, 10),
    Sketcher.Constraint("Equal", 10, 12),
    Sketcher.Constraint("Equal", 12, 15),
    Sketcher.Constraint("Equal", 15, 19),
    Sketcher.Constraint("Equal", 19, 22),
    Sketcher.Constraint("Equal", 22, 24),
    Sketcher.Constraint("Equal", 24, 27),
    Sketcher.Constraint("Equal", 27, 31),
    Sketcher.Constraint("Horizontal", 0, 3, 1, 3),
    Sketcher.Constraint("Horizontal", 2, 3, 3, 3),
    Sketcher.Constraint("Horizontal", 3, 3, 4, 3),
    Sketcher.Constraint("Horizontal", 4, 3, 5, 3),
    Sketcher.Constraint("Horizontal", 1, 3, 6, 3),
    Sketcher.Constraint("Horizontal", 6, 3, 7, 3),
    Sketcher.Constraint("Horizontal", 12, 3, 15, 3),
    Sketcher.Constraint("Horizontal", 24, 3, 27, 3),
    Sketcher.Constraint("Horizontal", 13, 2, 16, 2),
    Sketcher.Constraint("Horizontal", 25, 2, 28, 2),
    Sketcher.Constraint("Vertical", 1, 3, 2, 3),
    Sketcher.Constraint("Vertical", 0, 3, 5, 3),
    Sketcher.Constraint("Vertical", 3, 3, 6, 3),
    Sketcher.Constraint("Vertical", 4, 3, 7, 3),
    Sketcher.Constraint("Vertical", 15, 3, 22, 3),
    Sketcher.Constraint("Vertical", 19, 3, 24, 3),
    Sketcher.Constraint("Vertical", 10, 3, 27, 3),
    Sketcher.Constraint("Vertical", 12, 3, 31, 3),
    Sketcher.Constraint("Equal", 11, 14),
    Sketcher.Constraint("Equal", 26, 9),
    Sketcher.Constraint("Equal", 18, 21),
    Sketcher.Constraint("Diameter", 0, 2.0),
    Sketcher.Constraint("DistanceX", 8, 2, 8, 1, 4.0),
    Sketcher.Constraint("DistanceX", 1, 3, 0, 3, 12.0),
    Sketcher.Constraint("DistanceY", 2, 3, 1, 3, 36.0),
    Sketcher.Constraint("DistanceX", 3, 3, 2, 3, 8.0),
    Sketcher.Constraint("DistanceX", 2, 3, 4, 3, 4.0),
    Sketcher.Constraint("DistanceX", 6, 3, 10, 3, 3.0),
    Sketcher.Constraint("DistanceY", 6, 3, 10, 3, 2.0),
    Sketcher.Constraint("DistanceX", 15, 3, 0, 3, 3.0),
    Sketcher.Constraint("DistanceY", 22, 3, 5, 3, 2.0),
    Sketcher.Constraint("DistanceY", -1, 1, 0, 3, 15.793641),
    Sketcher.Constraint("DistanceX", -1, 1, 0, 3, 12.753768),
])
pocket1 = body.newObject("PartDesign::Pocket", "Pocket")
pocket1.Profile = sketch3
pocket1.Length = 2

# Sketch on XY plane
sketch4 = body.newObject("Sketcher::SketchObject", "Sketch003")
sketch4.AttachmentSupport = (doc.getObject("XY_Plane"), [""])
sketch4.MapMode = "FlatFace"
sketch4.AttachmentOffset = App.Placement(V(0, 0, 2), App.Rotation())
add_polygon(sketch4, [(-19.2, -21.2), (-19.2, -24.2), (-5.2, -24.2), (-5.2, -21.2)])  # lines 0-3
add_polygon(sketch4, [(-19.2, 16.8), (-5.2, 16.8), (-5.2, 19.8), (-19.2, 19.8)])  # lines 4-7
add_polygon(sketch4, [(24.8, 16.8), (24.8, 19.8), (10.8, 19.8), (10.8, 16.8)])  # lines 8-11
add_polygon(sketch4, [(24.8, -24.2), (24.8, -21.2), (10.8, -21.2), (10.8, -24.2)])  # lines 12-15
add_polygon(sketch4, [(-1.2, 16.8), (6.8, 16.8), (6.8, 19.8), (-1.2, 19.8)])  # lines 16-19
add_polygon(sketch4, [(-1.2, -21.2), (-1.2, -24.2), (6.8, -24.2), (6.8, -21.2)])  # lines 20-23
sketch4.addConstraint([
    Sketcher.Constraint("Vertical", 0),
    Sketcher.Constraint("Horizontal", 1),
    Sketcher.Constraint("Vertical", 2),
    Sketcher.Constraint("Horizontal", 3),
    Sketcher.Constraint("Horizontal", 4),
    Sketcher.Constraint("Vertical", 5),
    Sketcher.Constraint("Horizontal", 6),
    Sketcher.Constraint("Vertical", 7),
    Sketcher.Constraint("Vertical", 8),
    Sketcher.Constraint("Horizontal", 9),
    Sketcher.Constraint("Vertical", 10),
    Sketcher.Constraint("Horizontal", 11),
    Sketcher.Constraint("Vertical", 12),
    Sketcher.Constraint("Horizontal", 13),
    Sketcher.Constraint("Vertical", 14),
    Sketcher.Constraint("Horizontal", 15),
    Sketcher.Constraint("Horizontal", 16),
    Sketcher.Constraint("Vertical", 17),
    Sketcher.Constraint("Horizontal", 18),
    Sketcher.Constraint("Vertical", 19),
    Sketcher.Constraint("Vertical", 20),
    Sketcher.Constraint("Horizontal", 21),
    Sketcher.Constraint("Vertical", 22),
    Sketcher.Constraint("Horizontal", 23),
    Sketcher.Constraint("Horizontal", 6, 2, 8, 2),
    Sketcher.Constraint("Horizontal", 7, 2, 10, 2),
    Sketcher.Constraint("Horizontal", 3, 2, 12, 2),
    Sketcher.Constraint("Horizontal", 1, 2, 14, 2),
    Sketcher.Constraint("Horizontal", 11, 2, 16, 2),
    Sketcher.Constraint("Horizontal", 9, 2, 17, 2),
    Sketcher.Constraint("Horizontal", 15, 2, 20, 2),
    Sketcher.Constraint("Horizontal", 13, 2, 22, 2),
    Sketcher.Constraint("Vertical", 2, 2, 4, 2),
    Sketcher.Constraint("Vertical", 3, 2, 6, 2),
    Sketcher.Constraint("Vertical", 11, 2, 12, 2),
    Sketcher.Constraint("Vertical", 10, 2, 13, 2),
    Sketcher.Constraint("Vertical", 19, 2, 20, 2),
    Sketcher.Constraint("Vertical", 17, 2, 21, 2),
    Sketcher.Constraint("Equal", 6, 9),
    Sketcher.Constraint("Equal", 2, 5),
    Sketcher.Constraint("DistanceX", 1, 1, 1, 2, 14.0),
    Sketcher.Constraint("DistanceX", 16, 1, 16, 2, 8.0),
    Sketcher.Constraint("DistanceY", 0, 2, 0, 1, 3.0),
    Sketcher.Constraint("DistanceY", 2, 2, 4, 2, 38.0),
    Sketcher.Constraint("DistanceX", 5, 2, 8, 2, 30.0),
    Sketcher.Constraint("DistanceX", 16, 2, 10, 2, 4.0),
    Sketcher.Constraint("DistanceY", 0, 2, -1, 1, 24.206359),
    Sketcher.Constraint("DistanceX", 0, 2, -1, 1, 19.246232),
])
pad3 = body.newObject("PartDesign::Pad", "Pad002")
pad3.Profile = sketch4
pad3.Length = 2
pad3.Reversed = True

doc.recompute()
